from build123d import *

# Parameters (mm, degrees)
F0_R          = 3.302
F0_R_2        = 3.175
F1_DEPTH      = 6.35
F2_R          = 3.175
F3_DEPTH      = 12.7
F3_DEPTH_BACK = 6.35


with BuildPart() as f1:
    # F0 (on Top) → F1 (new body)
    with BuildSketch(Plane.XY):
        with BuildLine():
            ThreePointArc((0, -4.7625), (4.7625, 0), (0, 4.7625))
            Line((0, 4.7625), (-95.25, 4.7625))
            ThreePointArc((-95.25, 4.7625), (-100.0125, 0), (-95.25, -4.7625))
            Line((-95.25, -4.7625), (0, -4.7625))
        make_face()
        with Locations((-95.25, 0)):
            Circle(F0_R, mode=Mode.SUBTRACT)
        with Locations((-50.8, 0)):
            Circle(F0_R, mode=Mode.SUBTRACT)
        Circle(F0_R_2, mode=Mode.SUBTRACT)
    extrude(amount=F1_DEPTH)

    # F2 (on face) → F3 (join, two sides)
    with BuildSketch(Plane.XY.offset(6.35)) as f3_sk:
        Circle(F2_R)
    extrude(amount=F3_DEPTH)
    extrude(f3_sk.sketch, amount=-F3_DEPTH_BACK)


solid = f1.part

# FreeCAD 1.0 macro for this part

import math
import FreeCAD as App
import Part
import Sketcher
Q = App.Units.Quantity

doc = App.newDocument("Part")
params = doc.addObject("Spreadsheet::Sheet", "Params")
for row, (alias, value) in enumerate([
    ("sketch1_diameter", "0.26 in"),
    ("sketch1_diameter2", "0.25 in"),
    ("sketch1_radius", "0.1875 in"),
    ("sketch1_width", "3.75 in"),
    ("pad1_length", "0.25 in"),
    ("sketch2_diameter", "0.25 in"),
    ("pad2_length", "0.5 in"),
    ("pad2_length2", "0.25 in"),
], start=1):
    params.set(f"A{row}", alias)
    params.set(f"B{row}", "=" + value)
    params.setAlias(f"B{row}", alias)

body = doc.addObject("PartDesign::Body", "Body")

sketch1 = body.newObject("Sketcher::SketchObject", "Sketch")
sketch1.AttachmentSupport = (doc.getObject("XY_Plane"), [""])
sketch1.MapMode = "FlatFace"
sketch1.addGeometry([
    Part.ArcOfCircle(Part.Circle(App.Vector(0, 0, 0), App.Vector(0, 0, 1), 4.8), math.radians(-90), math.radians(90)),
    Part.LineSegment(App.Vector(0, 4.8, 0), App.Vector(-95.2, 4.8, 0)),
    Part.ArcOfCircle(Part.Circle(App.Vector(-95.2, 0, 0), App.Vector(0, 0, 1), 4.8), math.radians(90), math.radians(270)),
    Part.LineSegment(App.Vector(-95.2, -4.8, 0), App.Vector(0, -4.8, 0)),
    Part.Circle(App.Vector(-95.2, 0, 0), App.Vector(0, 0, 1), 3.3),
    Part.Circle(App.Vector(-50.8, 0, 0), App.Vector(0, 0, 1), 3.3),
    Part.Circle(App.Vector(0, 0, 0), App.Vector(0, 0, 1), 3.2),
], False)
sketch1.addConstraint([
    Sketcher.Constraint("Tangent", 0, 2, 1, 1),
    Sketcher.Constraint("Tangent", 1, 2, 2, 1),
    Sketcher.Constraint("Tangent", 2, 2, 3, 1),
    Sketcher.Constraint("Tangent", 3, 2, 0, 1),
    Sketcher.Constraint("Horizontal", 1),
    Sketcher.Constraint("Horizontal", 3),
    Sketcher.Constraint("Coincident", 0, 3, -1, 1),
    Sketcher.Constraint("Coincident", 6, 3, -1, 1),
    Sketcher.Constraint("Coincident", 4, 3, 2, 3),
    Sketcher.Constraint("Equal", 4, 5),
    Sketcher.Constraint("PointOnObject", 5, 3, -1),
    Sketcher.Constraint("Diameter", 4, Q("0.26 in")),
    Sketcher.Constraint("Diameter", 6, Q("0.25 in")),
    Sketcher.Constraint("DistanceX", 5, 3, -1, 1, Q("2 in")),
    Sketcher.Constraint("Radius", 0, Q("0.1875 in")),
    Sketcher.Constraint("DistanceX", 1, 2, 1, 1, Q("3.75 in")),
])
sketch1.setExpression("Constraints[11]", "Params.sketch1_diameter")
sketch1.setExpression("Constraints[12]", "Params.sketch1_diameter2")
sketch1.setExpression("Constraints[14]", "Params.sketch1_radius")
sketch1.setExpression("Constraints[15]", "Params.sketch1_width")
pad1 = body.newObject("PartDesign::Pad", "Pad")
pad1.Profile = sketch1
pad1.setExpression("Length", "Params.pad1_length")

sketch2 = body.newObject("Sketcher::SketchObject", "Sketch001")
sketch2.AttachmentSupport = (doc.getObject("XY_Plane"), [""])
sketch2.MapMode = "FlatFace"
sketch2.AttachmentOffset = App.Placement(App.Vector(0, 0, 0.25 * 25.4), App.Rotation())
sketch2.addGeometry(Part.Circle(App.Vector(0, 0, 0), App.Vector(0, 0, 1), 3.2), False)
sketch2.addConstraint([
    Sketcher.Constraint("Coincident", 0, 3, -1, 1),
    Sketcher.Constraint("Diameter", 0, Q("0.25 in")),
])
sketch2.setExpression("Constraints[1]", "Params.sketch2_diameter")
pad2 = body.newObject("PartDesign::Pad", "Pad001")
pad2.Profile = sketch2
pad2.Type = "TwoLengths"
pad2.setExpression("Length", "Params.pad2_length")
pad2.setExpression("Length2", "Params.pad2_length2")

doc.recompute()
